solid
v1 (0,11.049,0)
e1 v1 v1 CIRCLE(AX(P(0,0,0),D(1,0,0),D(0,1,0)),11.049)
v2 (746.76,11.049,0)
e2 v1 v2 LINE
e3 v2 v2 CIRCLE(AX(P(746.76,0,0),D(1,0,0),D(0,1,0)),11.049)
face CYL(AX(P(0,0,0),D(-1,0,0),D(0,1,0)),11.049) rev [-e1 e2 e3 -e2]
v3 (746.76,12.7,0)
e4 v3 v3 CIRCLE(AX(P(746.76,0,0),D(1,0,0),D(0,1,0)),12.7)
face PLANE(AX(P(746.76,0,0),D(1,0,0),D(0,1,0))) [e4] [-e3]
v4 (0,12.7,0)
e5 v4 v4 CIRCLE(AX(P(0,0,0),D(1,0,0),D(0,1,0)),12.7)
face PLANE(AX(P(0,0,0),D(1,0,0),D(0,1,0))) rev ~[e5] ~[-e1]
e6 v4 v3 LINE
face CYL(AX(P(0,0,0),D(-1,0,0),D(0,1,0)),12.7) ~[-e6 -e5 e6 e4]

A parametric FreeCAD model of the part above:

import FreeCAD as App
import Part
import Sketcher

V = App.Vector
Q = App.Units.Quantity

doc = App.newDocument("Part")
body = doc.addObject("PartDesign::Body", "Body")

# Sketch on YZ plane
sketch1 = body.newObject("Sketcher::SketchObject", "Sketch")
sketch1.AttachmentSupport = (doc.getObject("YZ_Plane"), [""])
sketch1.MapMode = "FlatFace"
sketch1.addGeometry(Part.Circle(V(0, 0, 0), V(0, 0, 1), 13), False)
sketch1.addGeometry(Part.Circle(V(0, 0, 0), V(0, 0, 1), 11), False)
sketch1.addConstraint(Sketcher.Constraint("Coincident", 0, 3, -1, 1))
sketch1.addConstraint(Sketcher.Constraint("Coincident", 1, 3, -1, 1))
sketch1.addConstraint(Sketcher.Constraint("Diameter", 0, Q("1 in")))
sketch1.addConstraint(Sketcher.Constraint("Diameter", 1, Q("0.87 in")))
pad1 = body.newObject("PartDesign::Pad", "Pad")
pad1.Profile = sketch1
pad1.Length = Q("29.4 in")

doc.recompute()
